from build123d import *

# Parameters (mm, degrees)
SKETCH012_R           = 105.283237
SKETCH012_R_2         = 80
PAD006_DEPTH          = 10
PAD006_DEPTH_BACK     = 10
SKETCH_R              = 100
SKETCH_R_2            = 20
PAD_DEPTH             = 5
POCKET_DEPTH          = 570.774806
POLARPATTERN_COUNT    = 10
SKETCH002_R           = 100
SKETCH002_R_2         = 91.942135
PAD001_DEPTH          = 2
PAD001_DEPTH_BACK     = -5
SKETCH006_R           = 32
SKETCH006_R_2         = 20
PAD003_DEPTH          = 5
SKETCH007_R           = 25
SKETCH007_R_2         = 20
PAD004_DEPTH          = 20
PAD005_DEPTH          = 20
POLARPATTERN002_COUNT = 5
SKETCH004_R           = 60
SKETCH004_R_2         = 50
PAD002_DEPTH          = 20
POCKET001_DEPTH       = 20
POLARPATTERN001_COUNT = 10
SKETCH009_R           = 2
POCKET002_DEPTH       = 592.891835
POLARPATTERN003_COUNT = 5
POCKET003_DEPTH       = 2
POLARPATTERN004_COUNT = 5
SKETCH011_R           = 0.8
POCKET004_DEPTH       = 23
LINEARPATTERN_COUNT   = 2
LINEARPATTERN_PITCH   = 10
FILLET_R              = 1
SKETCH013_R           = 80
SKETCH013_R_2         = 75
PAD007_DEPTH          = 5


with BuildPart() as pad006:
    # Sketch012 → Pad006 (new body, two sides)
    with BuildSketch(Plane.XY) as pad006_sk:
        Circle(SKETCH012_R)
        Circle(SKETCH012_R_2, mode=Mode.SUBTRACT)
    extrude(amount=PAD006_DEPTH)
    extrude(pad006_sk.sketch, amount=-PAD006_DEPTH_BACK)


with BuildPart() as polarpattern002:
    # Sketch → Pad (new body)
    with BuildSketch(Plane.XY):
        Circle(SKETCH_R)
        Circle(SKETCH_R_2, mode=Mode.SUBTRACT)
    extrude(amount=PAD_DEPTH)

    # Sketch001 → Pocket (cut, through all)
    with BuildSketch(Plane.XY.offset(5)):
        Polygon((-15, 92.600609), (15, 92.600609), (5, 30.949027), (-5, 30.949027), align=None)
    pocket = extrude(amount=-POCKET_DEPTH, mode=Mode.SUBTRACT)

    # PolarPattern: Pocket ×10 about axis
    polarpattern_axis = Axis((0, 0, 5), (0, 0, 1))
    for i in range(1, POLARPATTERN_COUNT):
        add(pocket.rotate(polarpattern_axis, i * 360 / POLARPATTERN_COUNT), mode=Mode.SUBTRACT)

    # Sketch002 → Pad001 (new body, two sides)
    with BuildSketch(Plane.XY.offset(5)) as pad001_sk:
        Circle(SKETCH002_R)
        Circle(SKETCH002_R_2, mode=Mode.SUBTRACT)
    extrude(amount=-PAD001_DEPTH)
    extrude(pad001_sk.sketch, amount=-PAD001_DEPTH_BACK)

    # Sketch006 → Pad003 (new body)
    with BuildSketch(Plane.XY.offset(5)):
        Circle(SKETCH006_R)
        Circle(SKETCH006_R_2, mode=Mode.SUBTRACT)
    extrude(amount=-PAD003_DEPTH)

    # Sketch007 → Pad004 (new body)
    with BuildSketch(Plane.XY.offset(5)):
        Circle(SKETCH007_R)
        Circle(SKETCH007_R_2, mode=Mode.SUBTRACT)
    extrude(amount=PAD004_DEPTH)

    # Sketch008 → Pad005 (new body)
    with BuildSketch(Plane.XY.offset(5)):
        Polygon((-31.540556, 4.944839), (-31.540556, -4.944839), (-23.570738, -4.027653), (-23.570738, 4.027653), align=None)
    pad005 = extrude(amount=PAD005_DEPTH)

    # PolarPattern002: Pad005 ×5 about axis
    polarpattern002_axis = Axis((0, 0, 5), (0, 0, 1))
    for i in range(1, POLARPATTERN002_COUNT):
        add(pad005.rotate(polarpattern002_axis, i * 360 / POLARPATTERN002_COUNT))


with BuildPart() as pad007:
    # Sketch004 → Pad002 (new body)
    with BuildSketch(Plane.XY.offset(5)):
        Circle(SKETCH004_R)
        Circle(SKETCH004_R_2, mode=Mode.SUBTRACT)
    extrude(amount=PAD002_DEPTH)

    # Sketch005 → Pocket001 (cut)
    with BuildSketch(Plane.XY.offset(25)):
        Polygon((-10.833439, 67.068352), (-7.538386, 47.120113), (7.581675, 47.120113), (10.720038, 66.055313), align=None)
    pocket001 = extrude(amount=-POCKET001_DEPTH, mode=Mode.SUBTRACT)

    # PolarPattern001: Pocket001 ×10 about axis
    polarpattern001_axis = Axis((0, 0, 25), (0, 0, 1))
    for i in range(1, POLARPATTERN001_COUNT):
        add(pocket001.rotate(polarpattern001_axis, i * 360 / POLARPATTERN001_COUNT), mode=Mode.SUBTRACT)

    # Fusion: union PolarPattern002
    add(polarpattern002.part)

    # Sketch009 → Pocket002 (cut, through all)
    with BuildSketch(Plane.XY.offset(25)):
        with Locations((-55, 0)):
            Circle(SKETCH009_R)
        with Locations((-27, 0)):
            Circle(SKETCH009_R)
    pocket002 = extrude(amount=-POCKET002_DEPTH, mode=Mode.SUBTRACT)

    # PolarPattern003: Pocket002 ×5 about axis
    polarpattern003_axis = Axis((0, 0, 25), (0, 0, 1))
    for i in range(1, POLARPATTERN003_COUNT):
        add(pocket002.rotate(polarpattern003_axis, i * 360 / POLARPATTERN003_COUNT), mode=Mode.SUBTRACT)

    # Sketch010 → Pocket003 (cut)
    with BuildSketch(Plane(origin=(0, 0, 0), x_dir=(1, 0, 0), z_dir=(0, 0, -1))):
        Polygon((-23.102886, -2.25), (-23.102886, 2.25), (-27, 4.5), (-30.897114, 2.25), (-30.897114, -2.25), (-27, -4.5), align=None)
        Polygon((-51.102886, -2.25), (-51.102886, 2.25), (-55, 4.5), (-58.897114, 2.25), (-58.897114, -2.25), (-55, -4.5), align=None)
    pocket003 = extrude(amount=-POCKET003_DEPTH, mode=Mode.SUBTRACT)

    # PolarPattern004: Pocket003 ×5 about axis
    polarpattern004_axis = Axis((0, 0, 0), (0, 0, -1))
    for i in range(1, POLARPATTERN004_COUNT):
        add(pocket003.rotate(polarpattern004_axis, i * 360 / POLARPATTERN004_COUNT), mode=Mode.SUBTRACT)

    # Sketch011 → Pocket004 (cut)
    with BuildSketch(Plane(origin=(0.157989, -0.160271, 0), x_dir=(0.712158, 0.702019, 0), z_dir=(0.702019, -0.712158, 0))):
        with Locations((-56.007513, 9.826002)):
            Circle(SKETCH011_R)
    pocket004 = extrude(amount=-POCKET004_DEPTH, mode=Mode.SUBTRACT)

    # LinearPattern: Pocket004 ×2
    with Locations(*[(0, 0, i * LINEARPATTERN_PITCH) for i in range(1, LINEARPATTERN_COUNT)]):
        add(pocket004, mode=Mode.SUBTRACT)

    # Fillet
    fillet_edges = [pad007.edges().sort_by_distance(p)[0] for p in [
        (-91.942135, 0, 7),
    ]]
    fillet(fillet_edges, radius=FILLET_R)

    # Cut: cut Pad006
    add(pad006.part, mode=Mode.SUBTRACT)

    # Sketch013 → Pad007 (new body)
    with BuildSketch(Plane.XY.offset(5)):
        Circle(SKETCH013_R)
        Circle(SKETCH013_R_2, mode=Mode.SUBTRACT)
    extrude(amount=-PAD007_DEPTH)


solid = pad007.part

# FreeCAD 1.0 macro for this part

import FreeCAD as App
import Part
import Sketcher
from FreeCAD import Vector
Q = App.Units.Quantity


def edges_at(feature, points):
    """Names of the edges that pass closest to the given points."""
    edges = feature.Shape.Edges
    near = lambda p: min(range(len(edges)), key=lambda i: edges[i].distToShape(Part.Vertex(*p))[0])
    return sorted({f"Edge{near(p) + 1}" for p in points})


def add_polygon(sketch, points):
    """Adds a closed chain of lines whose ends are joined by coincident constraints."""
    first, n = sketch.GeometryCount, len(points)
    for a, b in zip(points, points[1:] + points[:1]):
        sketch.addGeometry(Part.LineSegment(App.Vector(*a, 0), App.Vector(*b, 0)), False)
    for i in range(n):
        sketch.addConstraint(Sketcher.Constraint("Coincident", first + i, 2, first + (i + 1) % n, 1))

doc = App.newDocument("Part")
body = doc.addObject("PartDesign::Body", "Body")

sketch1 = body.newObject("Sketcher::SketchObject", "Sketch")
sketch1.AttachmentSupport = (doc.getObject("XY_Plane"), [""])
sketch1.MapMode = "FlatFace"
sketch1.addGeometry(Part.Circle(Vector(0, 0, 0), Vector(0, 0, 1), 105), False)
sketch1.addGeometry(Part.Circle(Vector(0, 0, 0), Vector(0, 0, 1), 80), False)
sketch1.addConstraint(Sketcher.Constraint("Coincident", 0, 3, -1, 1))
sketch1.addConstraint(Sketcher.Constraint("Coincident", 1, 3, -1, 1))
sketch1.addConstraint(Sketcher.Constraint("Diameter", 1, 160.0))
sketch1.addConstraint(Sketcher.Constraint("Diameter", 0, 210.566474))
pad1 = body.newObject("PartDesign::Pad", "Pad")
pad1.Profile = sketch1
pad1.Type = "TwoLengths"
pad1.Length = 10
pad1.Length2 = 10
body2 = doc.addObject("PartDesign::Body", "Body001")

sketch2 = body2.newObject("Sketcher::SketchObject", "Sketch001")
sketch2.AttachmentSupport = (doc.getObject("XY_Plane001"), [""])
sketch2.MapMode = "FlatFace"
sketch2.addGeometry(Part.Circle(Vector(0, 0, 0), Vector(0, 0, 1), 100), False)
sketch2.addGeometry(Part.Circle(Vector(0, 0, 0), Vector(0, 0, 1), 20), False)
sketch2.addConstraint(Sketcher.Constraint("Coincident", 0, 3, -1, 1))
sketch2.addConstraint(Sketcher.Constraint("Coincident", 1, 3, -1, 1))
sketch2.addConstraint(Sketcher.Constraint("Diameter", 0, 200.0))
sketch2.addConstraint(Sketcher.Constraint("Diameter", 1, 40.0))
pad2 = body2.newObject("PartDesign::Pad", "Pad001")
pad2.Profile = sketch2
pad2.Length = 5

sketch3 = body2.newObject("Sketcher::SketchObject", "Sketch002")
sketch3.AttachmentSupport = (doc.getObject("XY_Plane001"), [""])
sketch3.MapMode = "FlatFace"
sketch3.AttachmentOffset = App.Placement(Vector(0, 0, 5), App.Rotation())
add_polygon(sketch3, [(15, 93), (-15, 93), (-5, 31), (5, 31)])
sketch3.addConstraint(Sketcher.Constraint("Horizontal", 0))
sketch3.addConstraint(Sketcher.Constraint("Horizontal", 2))
sketch3.addConstraint(Sketcher.Constraint("Equal", 1, 3))
sketch3.addConstraint(Sketcher.Constraint("DistanceX", 0, 2, 0, 1, 30.0))
sketch3.addConstraint(Sketcher.Constraint("DistanceX", 2, 1, 2, 2, 10.0))
sketch3.addConstraint(Sketcher.Constraint("DistanceX", 0, 2, -1, 1, 15.0))
sketch3.addConstraint(Sketcher.Constraint("DistanceY", -1, 1, 0, 2, 92.600609))
sketch3.addConstraint(Sketcher.Constraint("Distance", 1, 62.457326))
pocket1 = body2.newObject("PartDesign::Pocket", "Pocket")
pocket1.Profile = sketch3
pocket1.Type = "ThroughAll"
doc.recompute()

polarpattern = body2.newObject("PartDesign::PolarPattern", "PolarPattern")
polarpattern.Originals = [pocket1]
polarpattern.Axis = (doc.getObject("Z_Axis001"), [""])
polarpattern.Angle = 360
polarpattern.Occurrences = 10
body2.Tip = polarpattern

sketch4 = body2.newObject("Sketcher::SketchObject", "Sketch003")
sketch4.AttachmentSupport = (doc.getObject("XY_Plane001"), [""])
sketch4.MapMode = "FlatFace"
sketch4.AttachmentOffset = App.Placement(Vector(0, 0, 5), App.Rotation())
sketch4.addGeometry(Part.Circle(Vector(0, 0, 0), Vector(0, 0, 1), 100), False)
sketch4.addGeometry(Part.Circle(Vector(0, 0, 0), Vector(0, 0, 1), 92), False)
sketch4.addConstraint(Sketcher.Constraint("Coincident", 0, 3, -1, 1))
sketch4.addConstraint(Sketcher.Constraint("Coincident", 1, 3, -1, 1))
sketch4.addConstraint(Sketcher.Constraint("Diameter", 0, 200.0))
sketch4.addConstraint(Sketcher.Constraint("Diameter", 1, 183.88427))
pad3 = body2.newObject("PartDesign::Pad", "Pad002")
pad3.Profile = sketch4
pad3.Type = "TwoLengths"
pad3.Length = 2
pad3.Length2 = 5
pad3.Reversed = True

sketch5 = body2.newObject("Sketcher::SketchObject", "Sketch004")
sketch5.AttachmentSupport = (doc.getObject("XY_Plane001"), [""])
sketch5.MapMode = "FlatFace"
sketch5.AttachmentOffset = App.Placement(Vector(0, 0, 5), App.Rotation())
sketch5.addGeometry(Part.Circle(Vector(0, 0, 0), Vector(0, 0, 1), 32), False)
sketch5.addGeometry(Part.Circle(Vector(0, 0, 0), Vector(0, 0, 1), 20), False)
sketch5.addConstraint(Sketcher.Constraint("Coincident", 0, 3, -1, 1))
sketch5.addConstraint(Sketcher.Constraint("Coincident", 1, 3, -1, 1))
sketch5.addConstraint(Sketcher.Constraint("Diameter", 0, 64.0))
sketch5.addConstraint(Sketcher.Constraint("Diameter", 1, 40.0))
pad4 = body2.newObject("PartDesign::Pad", "Pad003")
pad4.Profile = sketch5
pad4.Length = 5
pad4.Reversed = True

sketch6 = body2.newObject("Sketcher::SketchObject", "Sketch005")
sketch6.AttachmentSupport = (doc.getObject("XY_Plane001"), [""])
sketch6.MapMode = "FlatFace"
sketch6.AttachmentOffset = App.Placement(Vector(0, 0, 5), App.Rotation())
sketch6.addGeometry(Part.Circle(Vector(0, 0, 0), Vector(0, 0, 1), 25), False)
sketch6.addGeometry(Part.Circle(Vector(0, 0, 0), Vector(0, 0, 1), 20), False)
sketch6.addConstraint(Sketcher.Constraint("Coincident", 0, 3, -1, 1))
sketch6.addConstraint(Sketcher.Constraint("Coincident", 1, 3, -1, 1))
sketch6.addConstraint(Sketcher.Constraint("Diameter", 0, 50.0))
sketch6.addConstraint(Sketcher.Constraint("Diameter", 1, 40.0))
pad5 = body2.newObject("PartDesign::Pad", "Pad004")
pad5.Profile = sketch6
pad5.Length = 20

sketch7 = body2.newObject("Sketcher::SketchObject", "Sketch006")
sketch7.AttachmentSupport = (doc.getObject("XY_Plane001"), [""])
sketch7.MapMode = "FlatFace"
sketch7.AttachmentOffset = App.Placement(Vector(0, 0, 5), App.Rotation())
add_polygon(sketch7, [(-32, 5), (-32, -5), (-24, -4), (-24, 4)])
sketch7.addConstraint(Sketcher.Constraint("Vertical", 0))
sketch7.addConstraint(Sketcher.Constraint("Vertical", 2))
sketch7.addConstraint(Sketcher.Constraint("Equal", 1, 3))
sketch7.addConstraint(Sketcher.Constraint("Distance", 1, 8.02242))
sketch7.addConstraint(Sketcher.Constraint("DistanceY", 0, 2, 0, 1, 9.889678))
sketch7.addConstraint(Sketcher.Constraint("DistanceY", 2, 1, 2, 2, 8.055306))
sketch7.addConstraint(Sketcher.Constraint("DistanceY", 0, 2, -1, 1, 4.944839))
sketch7.addConstraint(Sketcher.Constraint("DistanceX", 0, 2, -1, 1, 31.540556))
pad6 = body2.newObject("PartDesign::Pad", "Pad005")
pad6.Profile = sketch7
pad6.Length = 20
doc.recompute()

polarpattern2 = body2.newObject("PartDesign::PolarPattern", "PolarPattern001")
polarpattern2.Originals = [pad6]
polarpattern2.Axis = (doc.getObject("Z_Axis001"), [""])
polarpattern2.Angle = 360
polarpattern2.Occurrences = 5
body2.Tip = polarpattern2
body3 = doc.addObject("PartDesign::Body", "Body002")
body3.AllowCompound = True

sketch8 = body3.newObject("Sketcher::SketchObject", "Sketch007")
sketch8.AttachmentSupport = (doc.getObject("XY_Plane002"), [""])
sketch8.MapMode = "FlatFace"
sketch8.AttachmentOffset = App.Placement(Vector(0, 0, 5), App.Rotation())
sketch8.addGeometry(Part.Circle(Vector(0, 0, 0), Vector(0, 0, 1), 60), False)
sketch8.addGeometry(Part.Circle(Vector(0, 0, 0), Vector(0, 0, 1), 50), False)
sketch8.addConstraint(Sketcher.Constraint("Coincident", 0, 3, -1, 1))
sketch8.addConstraint(Sketcher.Constraint("Coincident", 1, 3, -1, 1))
sketch8.addConstraint(Sketcher.Constraint("Diameter", 0, 120.0))
sketch8.addConstraint(Sketcher.Constraint("Diameter", 1, 100.0))
pad7 = body3.newObject("PartDesign::Pad", "Pad006")
pad7.Profile = sketch8
pad7.Length = 20

sketch9 = body3.newObject("Sketcher::SketchObject", "Sketch008")
sketch9.AttachmentSupport = (doc.getObject("XY_Plane002"), [""])
sketch9.MapMode = "FlatFace"
sketch9.AttachmentOffset = App.Placement(Vector(0, 0, 25), App.Rotation())
add_polygon(sketch9, [(-11, 67), (-8, 47), (8, 47), (11, 66)])
sketch9.addConstraint(Sketcher.Constraint("Horizontal", 1))
sketch9.addConstraint(Sketcher.Constraint("DistanceX", 1, 1, 1, 2, 15.120061))
sketch9.addConstraint(Sketcher.Constraint("DistanceY", 1, 2, 2, 2, 18.9352))
sketch9.addConstraint(Sketcher.Constraint("Distance", 3, 21.577271))
sketch9.addConstraint(Sketcher.Constraint("DistanceX", -1, 1, 2, 2, 10.720038))
sketch9.addConstraint(Sketcher.Constraint("DistanceX", 3, 2, -1, 1, 10.833439))
sketch9.addConstraint(Sketcher.Constraint("Distance", 0, 20.218546))
sketch9.addConstraint(Sketcher.Constraint("DistanceY", -1, 1, 0, 2, 47.120113))
pocket2 = body3.newObject("PartDesign::Pocket", "Pocket001")
pocket2.Profile = sketch9
pocket2.Length = 20
doc.recompute()

polarpattern3 = body3.newObject("PartDesign::PolarPattern", "PolarPattern002")
polarpattern3.Originals = [pocket2]
polarpattern3.Axis = (doc.getObject("Z_Axis002"), [""])
polarpattern3.Angle = 360
polarpattern3.Occurrences = 10
body3.Tip = polarpattern3
doc.recompute()

boolean = body3.newObject("PartDesign::Boolean", "Boolean")
boolean.Type = "Fuse"
boolean.addObjects([body2])

sketch10 = body3.newObject("Sketcher::SketchObject", "Sketch009")
sketch10.AttachmentSupport = (doc.getObject("XY_Plane002"), [""])
sketch10.MapMode = "FlatFace"
sketch10.AttachmentOffset = App.Placement(Vector(0, 0, 25), App.Rotation())
sketch10.addGeometry(Part.Circle(Vector(-55, 0, 0), Vector(0, 0, 1), 2), False)
sketch10.addGeometry(Part.Circle(Vector(-27, 0, 0), Vector(0, 0, 1), 2), False)
sketch10.addConstraint(Sketcher.Constraint("Equal", 0, 1))
sketch10.addConstraint(Sketcher.Constraint("PointOnObject", 0, 3, -1))
sketch10.addConstraint(Sketcher.Constraint("PointOnObject", 1, 3, -1))
sketch10.addConstraint(Sketcher.Constraint("Diameter", 0, 4.0))
sketch10.addConstraint(Sketcher.Constraint("DistanceX", 0, 3, -1, 1, 55.0))
sketch10.addConstraint(Sketcher.Constraint("DistanceX", 1, 3, -1, 1, 27.0))
pocket3 = body3.newObject("PartDesign::Pocket", "Pocket002")
pocket3.Profile = sketch10
pocket3.Type = "ThroughAll"
doc.recompute()

polarpattern4 = body3.newObject("PartDesign::PolarPattern", "PolarPattern003")
polarpattern4.Originals = [pocket3]
polarpattern4.Axis = (doc.getObject("Z_Axis002"), [""])
polarpattern4.Angle = 360
polarpattern4.Occurrences = 5
body3.Tip = polarpattern4

sketch11 = body3.newObject("Sketcher::SketchObject", "Sketch010")
sketch11.AttachmentSupport = (doc.getObject("XY_Plane002"), [""])
sketch11.MapMode = "FlatFace"
add_polygon(sketch11, [(-23.1, 2.2), (-23.1, -2.2), (-27, -4.5), (-30.9, -2.2), (-30.9, 2.2), (-27, 4.5)])
add_polygon(sketch11, [(-51.1, 2.2), (-51.1, -2.2), (-55, -4.5), (-58.9, -2.2), (-58.9, 2.2), (-55, 4.5)])
sketch11.addConstraint(Sketcher.Constraint("Vertical", 0))
sketch11.addConstraint(Sketcher.Constraint("Vertical", 3))
sketch11.addConstraint(Sketcher.Constraint("Vertical", 6))
sketch11.addConstraint(Sketcher.Constraint("Vertical", 9))
sketch11.addConstraint(Sketcher.Constraint("Symmetric", 1, 2, 4, 2, -1))
sketch11.addConstraint(Sketcher.Constraint("Symmetric", 7, 2, 10, 2, -1))
sketch11.addConstraint(Sketcher.Constraint("Parallel", 1, 4))
sketch11.addConstraint(Sketcher.Constraint("Parallel", 2, 5))
sketch11.addConstraint(Sketcher.Constraint("Parallel", 4, 7))
sketch11.addConstraint(Sketcher.Constraint("Parallel", 5, 8))
sketch11.addConstraint(Sketcher.Constraint("Parallel", 7, 10))
sketch11.addConstraint(Sketcher.Constraint("Parallel", 8, 11))
sketch11.addConstraint(Sketcher.Constraint("Horizontal", 0, 2, 2, 2))
sketch11.addConstraint(Sketcher.Constraint("Horizontal", 3, 2, 5, 2))
sketch11.addConstraint(Sketcher.Constraint("Horizontal", 2, 2, 6, 2))
sketch11.addConstraint(Sketcher.Constraint("Horizontal", 1, 2, 7, 2))
sketch11.addConstraint(Sketcher.Constraint("Horizontal", 6, 2, 8, 2))
sketch11.addConstraint(Sketcher.Constraint("Angle", 1, Q("-149.999998 deg")))
sketch11.addConstraint(Sketcher.Constraint("DistanceY", 0, 2, 0, 1, 4.5))
sketch11.addConstraint(Sketcher.Constraint("DistanceX", 1, 2, -1, 1, 27.0))
sketch11.addConstraint(Sketcher.Constraint("DistanceX", 7, 2, -1, 1, 55.0))
sketch11.addConstraint(Sketcher.Constraint("DistanceY", 1, 2, 4, 2, 9.0))
pocket4 = body3.newObject("PartDesign::Pocket", "Pocket003")
pocket4.Profile = sketch11
pocket4.Length = 2
pocket4.Reversed = True
doc.recompute()

polarpattern5 = body3.newObject("PartDesign::PolarPattern", "PolarPattern004")
polarpattern5.Originals = [pocket4]
polarpattern5.Axis = (doc.getObject("Z_Axis002"), [""])
polarpattern5.Angle = 360
polarpattern5.Occurrences = 5
body3.Tip = polarpattern5

sketch12 = body3.newObject("Sketcher::SketchObject", "Sketch011")
sketch12.Placement = App.Placement(Vector(0.157989, -0.160271, 0), App.Rotation(Vector(0.712158109, 0.702019108, 0), Vector(0, 0, 1), Vector(0.702019108, -0.712158109, 0), "ZXY"))
sketch12.addGeometry(Part.Circle(Vector(-56, 9.8, 0), Vector(0, 0, 1), 0.8), False)
sketch12.addConstraint(Sketcher.Constraint("Diameter", 0, 1.6))
sketch12.addConstraint(Sketcher.Constraint("DistanceX", 0, 3, -1, 1, 56.007513))
sketch12.addConstraint(Sketcher.Constraint("DistanceY", -1, 1, 0, 3, 9.826002))
pocket5 = body3.newObject("PartDesign::Pocket", "Pocket004")
pocket5.Profile = sketch12
pocket5.Length = 23
doc.recompute()

linearpattern = body3.newObject("PartDesign::LinearPattern", "LinearPattern")
linearpattern.Originals = [pocket5]
linearpattern.Direction = (doc.getObject("Z_Axis002"), [""])
linearpattern.Mode = "offset"
linearpattern.Offset = 10
linearpattern.Occurrences = 2
body3.Tip = linearpattern
doc.recompute()

fillet = body3.newObject("PartDesign::Fillet", "Fillet")
fillet.Base = (linearpattern, edges_at(linearpattern, [(-91.942, 0, 5)]))
fillet.Radius = 1
doc.recompute()

boolean2 = body3.newObject("PartDesign::Boolean", "Boolean001")
boolean2.Type = "Cut"
boolean2.addObjects([body])

sketch13 = body3.newObject("Sketcher::SketchObject", "Sketch012")
sketch13.AttachmentSupport = (doc.getObject("XY_Plane002"), [""])
sketch13.MapMode = "FlatFace"
sketch13.AttachmentOffset = App.Placement(Vector(0, 0, 5), App.Rotation())
sketch13.addGeometry(Part.Circle(Vector(0, 0, 0), Vector(0, 0, 1), 80), False)
sketch13.addGeometry(Part.Circle(Vector(0, 0, 0), Vector(0, 0, 1), 75), False)
sketch13.addConstraint(Sketcher.Constraint("Coincident", 0, 3, -1, 1))
sketch13.addConstraint(Sketcher.Constraint("Coincident", 1, 3, -1, 1))
sketch13.addConstraint(Sketcher.Constraint("Diameter", 0, 160.0))
sketch13.addConstraint(Sketcher.Constraint("Diameter", 1, 150.0))
pad8 = body3.newObject("PartDesign::Pad", "Pad007")
pad8.Profile = sketch13
pad8.Length = 5
pad8.Reversed = True

doc.recompute()
